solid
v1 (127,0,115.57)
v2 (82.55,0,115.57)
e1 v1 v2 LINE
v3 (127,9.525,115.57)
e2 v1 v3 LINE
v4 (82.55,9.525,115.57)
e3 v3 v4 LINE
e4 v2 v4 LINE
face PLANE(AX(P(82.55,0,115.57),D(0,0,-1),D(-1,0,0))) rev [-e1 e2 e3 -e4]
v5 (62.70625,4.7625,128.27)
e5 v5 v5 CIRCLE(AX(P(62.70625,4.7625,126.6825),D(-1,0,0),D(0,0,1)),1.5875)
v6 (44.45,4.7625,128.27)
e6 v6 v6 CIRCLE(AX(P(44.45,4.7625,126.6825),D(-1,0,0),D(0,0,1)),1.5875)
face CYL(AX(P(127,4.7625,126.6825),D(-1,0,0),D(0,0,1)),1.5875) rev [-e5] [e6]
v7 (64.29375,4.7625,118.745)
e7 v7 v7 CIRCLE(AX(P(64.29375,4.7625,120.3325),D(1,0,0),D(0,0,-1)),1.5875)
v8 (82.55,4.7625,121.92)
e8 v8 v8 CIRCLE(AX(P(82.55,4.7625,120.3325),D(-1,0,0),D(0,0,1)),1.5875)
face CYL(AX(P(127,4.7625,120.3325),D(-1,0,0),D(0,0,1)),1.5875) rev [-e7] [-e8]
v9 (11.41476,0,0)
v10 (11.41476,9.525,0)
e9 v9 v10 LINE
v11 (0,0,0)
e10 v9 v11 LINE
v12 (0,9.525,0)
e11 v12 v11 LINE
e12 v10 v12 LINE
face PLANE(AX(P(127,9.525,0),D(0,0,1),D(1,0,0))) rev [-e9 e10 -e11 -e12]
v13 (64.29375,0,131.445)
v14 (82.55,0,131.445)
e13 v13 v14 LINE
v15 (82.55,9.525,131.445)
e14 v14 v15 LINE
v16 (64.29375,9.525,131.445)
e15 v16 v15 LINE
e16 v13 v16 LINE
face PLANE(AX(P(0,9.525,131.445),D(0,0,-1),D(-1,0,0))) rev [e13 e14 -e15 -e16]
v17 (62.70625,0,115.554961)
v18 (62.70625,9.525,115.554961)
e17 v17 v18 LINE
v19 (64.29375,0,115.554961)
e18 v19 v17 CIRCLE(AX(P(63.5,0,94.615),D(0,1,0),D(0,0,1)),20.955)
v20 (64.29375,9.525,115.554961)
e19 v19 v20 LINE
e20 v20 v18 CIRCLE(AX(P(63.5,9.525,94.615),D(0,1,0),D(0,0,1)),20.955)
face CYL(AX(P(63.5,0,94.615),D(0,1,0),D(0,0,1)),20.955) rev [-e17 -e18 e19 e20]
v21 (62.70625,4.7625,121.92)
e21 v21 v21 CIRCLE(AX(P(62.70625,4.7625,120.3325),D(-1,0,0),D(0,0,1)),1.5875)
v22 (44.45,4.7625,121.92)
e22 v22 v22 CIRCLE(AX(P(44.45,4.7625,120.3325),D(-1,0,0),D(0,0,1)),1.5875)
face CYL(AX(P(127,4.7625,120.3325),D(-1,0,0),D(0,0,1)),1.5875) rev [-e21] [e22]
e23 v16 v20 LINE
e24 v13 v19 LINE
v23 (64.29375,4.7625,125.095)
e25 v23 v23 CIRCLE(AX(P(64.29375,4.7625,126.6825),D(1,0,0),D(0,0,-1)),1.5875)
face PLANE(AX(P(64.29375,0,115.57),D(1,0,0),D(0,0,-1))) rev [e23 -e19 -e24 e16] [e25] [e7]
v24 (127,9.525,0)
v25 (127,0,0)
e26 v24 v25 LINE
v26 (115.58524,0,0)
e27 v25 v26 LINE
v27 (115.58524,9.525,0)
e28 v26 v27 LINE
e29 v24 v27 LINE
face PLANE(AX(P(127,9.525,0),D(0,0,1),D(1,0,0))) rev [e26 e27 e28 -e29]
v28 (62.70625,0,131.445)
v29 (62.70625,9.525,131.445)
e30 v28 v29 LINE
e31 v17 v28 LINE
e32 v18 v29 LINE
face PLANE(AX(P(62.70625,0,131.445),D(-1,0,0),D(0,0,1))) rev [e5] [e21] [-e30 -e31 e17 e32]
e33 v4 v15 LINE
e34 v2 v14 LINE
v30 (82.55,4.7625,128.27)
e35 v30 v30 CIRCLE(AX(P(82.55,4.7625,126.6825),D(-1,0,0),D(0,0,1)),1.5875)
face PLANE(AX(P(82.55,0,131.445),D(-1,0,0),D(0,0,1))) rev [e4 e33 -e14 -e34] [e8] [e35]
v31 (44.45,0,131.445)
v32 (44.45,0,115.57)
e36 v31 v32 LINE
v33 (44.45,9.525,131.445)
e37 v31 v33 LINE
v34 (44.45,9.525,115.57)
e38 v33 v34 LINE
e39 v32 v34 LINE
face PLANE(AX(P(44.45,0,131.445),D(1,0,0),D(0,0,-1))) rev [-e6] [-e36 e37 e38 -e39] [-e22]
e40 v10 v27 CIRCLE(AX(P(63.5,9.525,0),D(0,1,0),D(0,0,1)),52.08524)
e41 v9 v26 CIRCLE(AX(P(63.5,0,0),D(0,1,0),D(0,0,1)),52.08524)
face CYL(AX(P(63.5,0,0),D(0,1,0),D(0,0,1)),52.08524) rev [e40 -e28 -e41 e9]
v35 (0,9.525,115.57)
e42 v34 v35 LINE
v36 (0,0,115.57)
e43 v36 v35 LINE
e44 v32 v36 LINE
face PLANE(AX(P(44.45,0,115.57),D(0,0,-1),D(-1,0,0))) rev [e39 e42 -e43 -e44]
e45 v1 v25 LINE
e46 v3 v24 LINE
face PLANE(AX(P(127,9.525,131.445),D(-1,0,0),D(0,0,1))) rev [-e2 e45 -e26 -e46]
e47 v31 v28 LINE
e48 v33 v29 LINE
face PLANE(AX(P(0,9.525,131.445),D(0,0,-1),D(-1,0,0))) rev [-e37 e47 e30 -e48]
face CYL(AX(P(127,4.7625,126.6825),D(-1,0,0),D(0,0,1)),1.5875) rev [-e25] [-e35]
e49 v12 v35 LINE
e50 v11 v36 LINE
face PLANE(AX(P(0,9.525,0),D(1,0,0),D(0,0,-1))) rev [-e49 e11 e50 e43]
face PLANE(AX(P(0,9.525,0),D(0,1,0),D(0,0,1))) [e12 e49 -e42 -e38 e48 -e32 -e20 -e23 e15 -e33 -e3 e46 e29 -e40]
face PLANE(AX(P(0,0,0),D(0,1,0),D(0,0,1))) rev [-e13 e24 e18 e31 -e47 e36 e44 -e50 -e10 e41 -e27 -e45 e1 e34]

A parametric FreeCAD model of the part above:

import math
import FreeCAD as App
import Part
import Sketcher

V = App.Vector
Q = App.Units.Quantity

doc = App.newDocument("Part")
body = doc.addObject("PartDesign::Body", "Body")

# Sketch on XZ plane
sketch1 = doc.addObject("Sketcher::SketchObject", "Sketch")
body.addObject(sketch1)
sketch1.AttachmentSupport = (doc.XZ_Plane, [""])
sketch1.MapMode = "FlatFace"
sketch1.addGeometry(Part.LineSegment(V(0, 0, 0), V(0, 131, 0)), False)
sketch1.addGeometry(Part.LineSegment(V(0, 131, 0), V(127, 131, 0)), False)
sketch1.addGeometry(Part.LineSegment(V(127, 131, 0), V(127, 0, 0)), False)
sketch1.addGeometry(Part.LineSegment(V(127, 0, 0), V(0, 0, 0)), False)
sketch1.addConstraint(Sketcher.Constraint("Coincident", 0, 2, 1, 1))
sketch1.addConstraint(Sketcher.Constraint("Coincident", 1, 2, 2, 1))
sketch1.addConstraint(Sketcher.Constraint("Coincident", 2, 2, 3, 1))
sketch1.addConstraint(Sketcher.Constraint("Coincident", 3, 2, 0, 1))
sketch1.addConstraint(Sketcher.Constraint("Vertical", 0))
sketch1.addConstraint(Sketcher.Constraint("Horizontal", 1))
sketch1.addConstraint(Sketcher.Constraint("Vertical", 2))
sketch1.addConstraint(Sketcher.Constraint("Horizontal", 3))
sketch1.addConstraint(Sketcher.Constraint("Coincident", 3, 2, -1, 1))
sketch1.addConstraint(Sketcher.Constraint("DistanceX", 1, 1, 1, 2, Q("5 in")))
sketch1.addConstraint(Sketcher.Constraint("DistanceY", 0, 1, 0, 2, Q("5.175 in")))
pad1 = doc.addObject("PartDesign::Pad", "Pad")
body.addObject(pad1)
pad1.Profile = sketch1
pad1.Length = Q("0.375 in")
pad1.Reversed = True

# Sketch on XZ plane
sketch2 = doc.addObject("Sketcher::SketchObject", "Sketch001")
body.addObject(sketch2)
sketch2.AttachmentSupport = (doc.XZ_Plane, [""])
sketch2.MapMode = "FlatFace"
sketch2.AttachmentOffset = App.Placement(V(0, 0, -0.375 * 25.4), App.Rotation())
sketch2.addGeometry(Part.LineSegment(V(0, 116, 0), V(0, 131, 0)), False)
sketch2.addGeometry(Part.LineSegment(V(0, 131, 0), V(44, 131, 0)), False)
sketch2.addGeometry(Part.LineSegment(V(44, 131, 0), V(44, 116, 0)), False)
sketch2.addGeometry(Part.LineSegment(V(44, 116, 0), V(0, 116, 0)), False)
sketch2.addGeometry(Part.LineSegment(V(83, 116, 0), V(83, 131, 0)), False)
sketch2.addGeometry(Part.LineSegment(V(83, 131, 0), V(127, 131, 0)), False)
sketch2.addGeometry(Part.LineSegment(V(127, 131, 0), V(127, 116, 0)), False)
sketch2.addGeometry(Part.LineSegment(V(127, 116, 0), V(83, 116, 0)), False)
sketch2.addConstraint(Sketcher.Constraint("Coincident", 0, 2, 1, 1))
sketch2.addConstraint(Sketcher.Constraint("Coincident", 1, 2, 2, 1))
sketch2.addConstraint(Sketcher.Constraint("Coincident", 2, 2, 3, 1))
sketch2.addConstraint(Sketcher.Constraint("Coincident", 3, 2, 0, 1))
sketch2.addConstraint(Sketcher.Constraint("Coincident", 4, 2, 5, 1))
sketch2.addConstraint(Sketcher.Constraint("Coincident", 5, 2, 6, 1))
sketch2.addConstraint(Sketcher.Constraint("Coincident", 6, 2, 7, 1))
sketch2.addConstraint(Sketcher.Constraint("Coincident", 7, 2, 4, 1))
sketch2.addConstraint(Sketcher.Constraint("Vertical", 0))
sketch2.addConstraint(Sketcher.Constraint("Horizontal", 1))
sketch2.addConstraint(Sketcher.Constraint("Vertical", 2))
sketch2.addConstraint(Sketcher.Constraint("Horizontal", 3))
sketch2.addConstraint(Sketcher.Constraint("Vertical", 4))
sketch2.addConstraint(Sketcher.Constraint("Horizontal", 5))
sketch2.addConstraint(Sketcher.Constraint("Vertical", 6))
sketch2.addConstraint(Sketcher.Constraint("Horizontal", 7))
sketch2.addConstraint(Sketcher.Constraint("PointOnObject", 0, 2, -2))
sketch2.addConstraint(Sketcher.Constraint("Horizontal", 1, 2, 4, 2))
sketch2.addConstraint(Sketcher.Constraint("Horizontal", 3, 2, 6, 2))
sketch2.addConstraint(Sketcher.Constraint("Equal", 3, 5))
sketch2.addConstraint(Sketcher.Constraint("DistanceX", -1, 1, 5, 2, Q("5 in")))
sketch2.addConstraint(Sketcher.Constraint("DistanceX", 1, 1, 1, 2, Q("1.75 in")))
sketch2.addConstraint(Sketcher.Constraint("DistanceY", 0, 1, 0, 2, Q("0.625 in")))
sketch2.addConstraint(Sketcher.Constraint("DistanceY", -1, 1, 2, 2, Q("4.55 in")))
pocket1 = doc.addObject("PartDesign::Pocket", "Pocket")
body.addObject(pocket1)
pocket1.Profile = sketch2
pocket1.Type = "ThroughAll"
pocket1.Reversed = True

# Sketch on XZ plane
sketch3 = doc.addObject("Sketcher::SketchObject", "Sketch002")
body.addObject(sketch3)
sketch3.AttachmentSupport = (doc.XZ_Plane, [""])
sketch3.MapMode = "FlatFace"
sketch3.AttachmentOffset = App.Placement(V(0, 0, -0.375 * 25.4), App.Rotation())
sketch3.addGeometry(Part.LineSegment(V(64.3, 131.4, 0), V(64.3, 115.6, 0)), False)
sketch3.addGeometry(Part.ArcOfCircle(Part.Circle(V(63.5, 94.6, 0), V(0, 0, 1), 21), math.radians(92), math.radians(448)), False)
sketch3.addGeometry(Part.LineSegment(V(62.7, 115.6, 0), V(62.7, 131.4, 0)), False)
sketch3.addGeometry(Part.LineSegment(V(62.7, 131.4, 0), V(64.3, 131.4, 0)), False)
sketch3.addConstraint(Sketcher.Constraint("Coincident", 0, 2, 1, 2))
sketch3.addConstraint(Sketcher.Constraint("Coincident", 1, 1, 2, 1))
sketch3.addConstraint(Sketcher.Constraint("Coincident", 2, 2, 3, 1))
sketch3.addConstraint(Sketcher.Constraint("Coincident", 3, 2, 0, 1))
sketch3.addConstraint(Sketcher.Constraint("Vertical", 0))
sketch3.addConstraint(Sketcher.Constraint("Vertical", 2))
sketch3.addConstraint(Sketcher.Constraint("Horizontal", 3))
sketch3.addConstraint(Sketcher.Constraint("Horizontal", 0, 2, 1, 1))
sketch3.addConstraint(Sketcher.Constraint("Radius", 1, Q("0.825 in")))
sketch3.addConstraint(Sketcher.Constraint("DistanceX", -1, 1, 1, 3, Q("2.5 in")))
sketch3.addConstraint(Sketcher.Constraint("DistanceX", 3, 1, 3, 2, Q("0.0625 in")))
sketch3.addConstraint(Sketcher.Constraint("DistanceY", 1, 3, 2, 2, Q("1.45 in")))
sketch3.addConstraint(Sketcher.Constraint("DistanceY", -1, 1, 1, 3, Q("3.725 in")))
pocket2 = doc.addObject("PartDesign::Pocket", "Pocket001")
body.addObject(pocket2)
pocket2.Profile = sketch3
pocket2.Type = "ThroughAll"
pocket2.Reversed = True

# Sketch on XZ plane
sketch4 = doc.addObject("Sketcher::SketchObject", "Sketch003")
body.addObject(sketch4)
sketch4.AttachmentSupport = (doc.XZ_Plane, [""])
sketch4.MapMode = "FlatFace"
sketch4.AttachmentOffset = App.Placement(V(0, 0, -0.375 * 25.4), App.Rotation())
sketch4.addGeometry(Part.Circle(V(64, 0, 0), V(0, 0, 1), 52), False)
sketch4.addConstraint(Sketcher.Constraint("PointOnObject", 0, 3, -1))
sketch4.addConstraint(Sketcher.Constraint("Diameter", 0, Q("4.1012 in")))
sketch4.addConstraint(Sketcher.Constraint("DistanceX", -1, 1, 0, 3, Q("2.5 in")))
pocket3 = doc.addObject("PartDesign::Pocket", "Pocket002")
body.addObject(pocket3)
pocket3.Profile = sketch4
pocket3.Type = "ThroughAll"
pocket3.Reversed = True

# Sketch on YZ plane
sketch5 = doc.addObject("Sketcher::SketchObject", "Sketch004")
body.addObject(sketch5)
sketch5.AttachmentSupport = (doc.YZ_Plane, [""])
sketch5.MapMode = "FlatFace"
sketch5.AttachmentOffset = App.Placement(V(0, 0, 1.75 * 25.4), App.Rotation())
sketch5.addGeometry(Part.Circle(V(4.8, 120.3, 0), V(0, 0, 1), 1.6), False)
sketch5.addGeometry(Part.Circle(V(4.8, 126.7, 0), V(0, 0, 1), 1.6), False)
sketch5.addConstraint(Sketcher.Constraint("Equal", 0, 1))
sketch5.addConstraint(Sketcher.Constraint("Vertical", 0, 3, 1, 3))
sketch5.addConstraint(Sketcher.Constraint("Diameter", 0, Q("0.125 in")))
sketch5.addConstraint(Sketcher.Constraint("DistanceY", 0, 3, 1, 3, Q("0.25 in")))
sketch5.addConstraint(Sketcher.Constraint("DistanceX", -1, 1, 0, 3, Q("0.1875 in")))
sketch5.addConstraint(Sketcher.Constraint("DistanceY", -1, 1, 0, 3, Q("4.7375 in")))
pocket4 = doc.addObject("PartDesign::Pocket", "Pocket003")
body.addObject(pocket4)
pocket4.Profile = sketch5
pocket4.Type = "ThroughAll"
pocket4.Reversed = True

doc.recompute()
